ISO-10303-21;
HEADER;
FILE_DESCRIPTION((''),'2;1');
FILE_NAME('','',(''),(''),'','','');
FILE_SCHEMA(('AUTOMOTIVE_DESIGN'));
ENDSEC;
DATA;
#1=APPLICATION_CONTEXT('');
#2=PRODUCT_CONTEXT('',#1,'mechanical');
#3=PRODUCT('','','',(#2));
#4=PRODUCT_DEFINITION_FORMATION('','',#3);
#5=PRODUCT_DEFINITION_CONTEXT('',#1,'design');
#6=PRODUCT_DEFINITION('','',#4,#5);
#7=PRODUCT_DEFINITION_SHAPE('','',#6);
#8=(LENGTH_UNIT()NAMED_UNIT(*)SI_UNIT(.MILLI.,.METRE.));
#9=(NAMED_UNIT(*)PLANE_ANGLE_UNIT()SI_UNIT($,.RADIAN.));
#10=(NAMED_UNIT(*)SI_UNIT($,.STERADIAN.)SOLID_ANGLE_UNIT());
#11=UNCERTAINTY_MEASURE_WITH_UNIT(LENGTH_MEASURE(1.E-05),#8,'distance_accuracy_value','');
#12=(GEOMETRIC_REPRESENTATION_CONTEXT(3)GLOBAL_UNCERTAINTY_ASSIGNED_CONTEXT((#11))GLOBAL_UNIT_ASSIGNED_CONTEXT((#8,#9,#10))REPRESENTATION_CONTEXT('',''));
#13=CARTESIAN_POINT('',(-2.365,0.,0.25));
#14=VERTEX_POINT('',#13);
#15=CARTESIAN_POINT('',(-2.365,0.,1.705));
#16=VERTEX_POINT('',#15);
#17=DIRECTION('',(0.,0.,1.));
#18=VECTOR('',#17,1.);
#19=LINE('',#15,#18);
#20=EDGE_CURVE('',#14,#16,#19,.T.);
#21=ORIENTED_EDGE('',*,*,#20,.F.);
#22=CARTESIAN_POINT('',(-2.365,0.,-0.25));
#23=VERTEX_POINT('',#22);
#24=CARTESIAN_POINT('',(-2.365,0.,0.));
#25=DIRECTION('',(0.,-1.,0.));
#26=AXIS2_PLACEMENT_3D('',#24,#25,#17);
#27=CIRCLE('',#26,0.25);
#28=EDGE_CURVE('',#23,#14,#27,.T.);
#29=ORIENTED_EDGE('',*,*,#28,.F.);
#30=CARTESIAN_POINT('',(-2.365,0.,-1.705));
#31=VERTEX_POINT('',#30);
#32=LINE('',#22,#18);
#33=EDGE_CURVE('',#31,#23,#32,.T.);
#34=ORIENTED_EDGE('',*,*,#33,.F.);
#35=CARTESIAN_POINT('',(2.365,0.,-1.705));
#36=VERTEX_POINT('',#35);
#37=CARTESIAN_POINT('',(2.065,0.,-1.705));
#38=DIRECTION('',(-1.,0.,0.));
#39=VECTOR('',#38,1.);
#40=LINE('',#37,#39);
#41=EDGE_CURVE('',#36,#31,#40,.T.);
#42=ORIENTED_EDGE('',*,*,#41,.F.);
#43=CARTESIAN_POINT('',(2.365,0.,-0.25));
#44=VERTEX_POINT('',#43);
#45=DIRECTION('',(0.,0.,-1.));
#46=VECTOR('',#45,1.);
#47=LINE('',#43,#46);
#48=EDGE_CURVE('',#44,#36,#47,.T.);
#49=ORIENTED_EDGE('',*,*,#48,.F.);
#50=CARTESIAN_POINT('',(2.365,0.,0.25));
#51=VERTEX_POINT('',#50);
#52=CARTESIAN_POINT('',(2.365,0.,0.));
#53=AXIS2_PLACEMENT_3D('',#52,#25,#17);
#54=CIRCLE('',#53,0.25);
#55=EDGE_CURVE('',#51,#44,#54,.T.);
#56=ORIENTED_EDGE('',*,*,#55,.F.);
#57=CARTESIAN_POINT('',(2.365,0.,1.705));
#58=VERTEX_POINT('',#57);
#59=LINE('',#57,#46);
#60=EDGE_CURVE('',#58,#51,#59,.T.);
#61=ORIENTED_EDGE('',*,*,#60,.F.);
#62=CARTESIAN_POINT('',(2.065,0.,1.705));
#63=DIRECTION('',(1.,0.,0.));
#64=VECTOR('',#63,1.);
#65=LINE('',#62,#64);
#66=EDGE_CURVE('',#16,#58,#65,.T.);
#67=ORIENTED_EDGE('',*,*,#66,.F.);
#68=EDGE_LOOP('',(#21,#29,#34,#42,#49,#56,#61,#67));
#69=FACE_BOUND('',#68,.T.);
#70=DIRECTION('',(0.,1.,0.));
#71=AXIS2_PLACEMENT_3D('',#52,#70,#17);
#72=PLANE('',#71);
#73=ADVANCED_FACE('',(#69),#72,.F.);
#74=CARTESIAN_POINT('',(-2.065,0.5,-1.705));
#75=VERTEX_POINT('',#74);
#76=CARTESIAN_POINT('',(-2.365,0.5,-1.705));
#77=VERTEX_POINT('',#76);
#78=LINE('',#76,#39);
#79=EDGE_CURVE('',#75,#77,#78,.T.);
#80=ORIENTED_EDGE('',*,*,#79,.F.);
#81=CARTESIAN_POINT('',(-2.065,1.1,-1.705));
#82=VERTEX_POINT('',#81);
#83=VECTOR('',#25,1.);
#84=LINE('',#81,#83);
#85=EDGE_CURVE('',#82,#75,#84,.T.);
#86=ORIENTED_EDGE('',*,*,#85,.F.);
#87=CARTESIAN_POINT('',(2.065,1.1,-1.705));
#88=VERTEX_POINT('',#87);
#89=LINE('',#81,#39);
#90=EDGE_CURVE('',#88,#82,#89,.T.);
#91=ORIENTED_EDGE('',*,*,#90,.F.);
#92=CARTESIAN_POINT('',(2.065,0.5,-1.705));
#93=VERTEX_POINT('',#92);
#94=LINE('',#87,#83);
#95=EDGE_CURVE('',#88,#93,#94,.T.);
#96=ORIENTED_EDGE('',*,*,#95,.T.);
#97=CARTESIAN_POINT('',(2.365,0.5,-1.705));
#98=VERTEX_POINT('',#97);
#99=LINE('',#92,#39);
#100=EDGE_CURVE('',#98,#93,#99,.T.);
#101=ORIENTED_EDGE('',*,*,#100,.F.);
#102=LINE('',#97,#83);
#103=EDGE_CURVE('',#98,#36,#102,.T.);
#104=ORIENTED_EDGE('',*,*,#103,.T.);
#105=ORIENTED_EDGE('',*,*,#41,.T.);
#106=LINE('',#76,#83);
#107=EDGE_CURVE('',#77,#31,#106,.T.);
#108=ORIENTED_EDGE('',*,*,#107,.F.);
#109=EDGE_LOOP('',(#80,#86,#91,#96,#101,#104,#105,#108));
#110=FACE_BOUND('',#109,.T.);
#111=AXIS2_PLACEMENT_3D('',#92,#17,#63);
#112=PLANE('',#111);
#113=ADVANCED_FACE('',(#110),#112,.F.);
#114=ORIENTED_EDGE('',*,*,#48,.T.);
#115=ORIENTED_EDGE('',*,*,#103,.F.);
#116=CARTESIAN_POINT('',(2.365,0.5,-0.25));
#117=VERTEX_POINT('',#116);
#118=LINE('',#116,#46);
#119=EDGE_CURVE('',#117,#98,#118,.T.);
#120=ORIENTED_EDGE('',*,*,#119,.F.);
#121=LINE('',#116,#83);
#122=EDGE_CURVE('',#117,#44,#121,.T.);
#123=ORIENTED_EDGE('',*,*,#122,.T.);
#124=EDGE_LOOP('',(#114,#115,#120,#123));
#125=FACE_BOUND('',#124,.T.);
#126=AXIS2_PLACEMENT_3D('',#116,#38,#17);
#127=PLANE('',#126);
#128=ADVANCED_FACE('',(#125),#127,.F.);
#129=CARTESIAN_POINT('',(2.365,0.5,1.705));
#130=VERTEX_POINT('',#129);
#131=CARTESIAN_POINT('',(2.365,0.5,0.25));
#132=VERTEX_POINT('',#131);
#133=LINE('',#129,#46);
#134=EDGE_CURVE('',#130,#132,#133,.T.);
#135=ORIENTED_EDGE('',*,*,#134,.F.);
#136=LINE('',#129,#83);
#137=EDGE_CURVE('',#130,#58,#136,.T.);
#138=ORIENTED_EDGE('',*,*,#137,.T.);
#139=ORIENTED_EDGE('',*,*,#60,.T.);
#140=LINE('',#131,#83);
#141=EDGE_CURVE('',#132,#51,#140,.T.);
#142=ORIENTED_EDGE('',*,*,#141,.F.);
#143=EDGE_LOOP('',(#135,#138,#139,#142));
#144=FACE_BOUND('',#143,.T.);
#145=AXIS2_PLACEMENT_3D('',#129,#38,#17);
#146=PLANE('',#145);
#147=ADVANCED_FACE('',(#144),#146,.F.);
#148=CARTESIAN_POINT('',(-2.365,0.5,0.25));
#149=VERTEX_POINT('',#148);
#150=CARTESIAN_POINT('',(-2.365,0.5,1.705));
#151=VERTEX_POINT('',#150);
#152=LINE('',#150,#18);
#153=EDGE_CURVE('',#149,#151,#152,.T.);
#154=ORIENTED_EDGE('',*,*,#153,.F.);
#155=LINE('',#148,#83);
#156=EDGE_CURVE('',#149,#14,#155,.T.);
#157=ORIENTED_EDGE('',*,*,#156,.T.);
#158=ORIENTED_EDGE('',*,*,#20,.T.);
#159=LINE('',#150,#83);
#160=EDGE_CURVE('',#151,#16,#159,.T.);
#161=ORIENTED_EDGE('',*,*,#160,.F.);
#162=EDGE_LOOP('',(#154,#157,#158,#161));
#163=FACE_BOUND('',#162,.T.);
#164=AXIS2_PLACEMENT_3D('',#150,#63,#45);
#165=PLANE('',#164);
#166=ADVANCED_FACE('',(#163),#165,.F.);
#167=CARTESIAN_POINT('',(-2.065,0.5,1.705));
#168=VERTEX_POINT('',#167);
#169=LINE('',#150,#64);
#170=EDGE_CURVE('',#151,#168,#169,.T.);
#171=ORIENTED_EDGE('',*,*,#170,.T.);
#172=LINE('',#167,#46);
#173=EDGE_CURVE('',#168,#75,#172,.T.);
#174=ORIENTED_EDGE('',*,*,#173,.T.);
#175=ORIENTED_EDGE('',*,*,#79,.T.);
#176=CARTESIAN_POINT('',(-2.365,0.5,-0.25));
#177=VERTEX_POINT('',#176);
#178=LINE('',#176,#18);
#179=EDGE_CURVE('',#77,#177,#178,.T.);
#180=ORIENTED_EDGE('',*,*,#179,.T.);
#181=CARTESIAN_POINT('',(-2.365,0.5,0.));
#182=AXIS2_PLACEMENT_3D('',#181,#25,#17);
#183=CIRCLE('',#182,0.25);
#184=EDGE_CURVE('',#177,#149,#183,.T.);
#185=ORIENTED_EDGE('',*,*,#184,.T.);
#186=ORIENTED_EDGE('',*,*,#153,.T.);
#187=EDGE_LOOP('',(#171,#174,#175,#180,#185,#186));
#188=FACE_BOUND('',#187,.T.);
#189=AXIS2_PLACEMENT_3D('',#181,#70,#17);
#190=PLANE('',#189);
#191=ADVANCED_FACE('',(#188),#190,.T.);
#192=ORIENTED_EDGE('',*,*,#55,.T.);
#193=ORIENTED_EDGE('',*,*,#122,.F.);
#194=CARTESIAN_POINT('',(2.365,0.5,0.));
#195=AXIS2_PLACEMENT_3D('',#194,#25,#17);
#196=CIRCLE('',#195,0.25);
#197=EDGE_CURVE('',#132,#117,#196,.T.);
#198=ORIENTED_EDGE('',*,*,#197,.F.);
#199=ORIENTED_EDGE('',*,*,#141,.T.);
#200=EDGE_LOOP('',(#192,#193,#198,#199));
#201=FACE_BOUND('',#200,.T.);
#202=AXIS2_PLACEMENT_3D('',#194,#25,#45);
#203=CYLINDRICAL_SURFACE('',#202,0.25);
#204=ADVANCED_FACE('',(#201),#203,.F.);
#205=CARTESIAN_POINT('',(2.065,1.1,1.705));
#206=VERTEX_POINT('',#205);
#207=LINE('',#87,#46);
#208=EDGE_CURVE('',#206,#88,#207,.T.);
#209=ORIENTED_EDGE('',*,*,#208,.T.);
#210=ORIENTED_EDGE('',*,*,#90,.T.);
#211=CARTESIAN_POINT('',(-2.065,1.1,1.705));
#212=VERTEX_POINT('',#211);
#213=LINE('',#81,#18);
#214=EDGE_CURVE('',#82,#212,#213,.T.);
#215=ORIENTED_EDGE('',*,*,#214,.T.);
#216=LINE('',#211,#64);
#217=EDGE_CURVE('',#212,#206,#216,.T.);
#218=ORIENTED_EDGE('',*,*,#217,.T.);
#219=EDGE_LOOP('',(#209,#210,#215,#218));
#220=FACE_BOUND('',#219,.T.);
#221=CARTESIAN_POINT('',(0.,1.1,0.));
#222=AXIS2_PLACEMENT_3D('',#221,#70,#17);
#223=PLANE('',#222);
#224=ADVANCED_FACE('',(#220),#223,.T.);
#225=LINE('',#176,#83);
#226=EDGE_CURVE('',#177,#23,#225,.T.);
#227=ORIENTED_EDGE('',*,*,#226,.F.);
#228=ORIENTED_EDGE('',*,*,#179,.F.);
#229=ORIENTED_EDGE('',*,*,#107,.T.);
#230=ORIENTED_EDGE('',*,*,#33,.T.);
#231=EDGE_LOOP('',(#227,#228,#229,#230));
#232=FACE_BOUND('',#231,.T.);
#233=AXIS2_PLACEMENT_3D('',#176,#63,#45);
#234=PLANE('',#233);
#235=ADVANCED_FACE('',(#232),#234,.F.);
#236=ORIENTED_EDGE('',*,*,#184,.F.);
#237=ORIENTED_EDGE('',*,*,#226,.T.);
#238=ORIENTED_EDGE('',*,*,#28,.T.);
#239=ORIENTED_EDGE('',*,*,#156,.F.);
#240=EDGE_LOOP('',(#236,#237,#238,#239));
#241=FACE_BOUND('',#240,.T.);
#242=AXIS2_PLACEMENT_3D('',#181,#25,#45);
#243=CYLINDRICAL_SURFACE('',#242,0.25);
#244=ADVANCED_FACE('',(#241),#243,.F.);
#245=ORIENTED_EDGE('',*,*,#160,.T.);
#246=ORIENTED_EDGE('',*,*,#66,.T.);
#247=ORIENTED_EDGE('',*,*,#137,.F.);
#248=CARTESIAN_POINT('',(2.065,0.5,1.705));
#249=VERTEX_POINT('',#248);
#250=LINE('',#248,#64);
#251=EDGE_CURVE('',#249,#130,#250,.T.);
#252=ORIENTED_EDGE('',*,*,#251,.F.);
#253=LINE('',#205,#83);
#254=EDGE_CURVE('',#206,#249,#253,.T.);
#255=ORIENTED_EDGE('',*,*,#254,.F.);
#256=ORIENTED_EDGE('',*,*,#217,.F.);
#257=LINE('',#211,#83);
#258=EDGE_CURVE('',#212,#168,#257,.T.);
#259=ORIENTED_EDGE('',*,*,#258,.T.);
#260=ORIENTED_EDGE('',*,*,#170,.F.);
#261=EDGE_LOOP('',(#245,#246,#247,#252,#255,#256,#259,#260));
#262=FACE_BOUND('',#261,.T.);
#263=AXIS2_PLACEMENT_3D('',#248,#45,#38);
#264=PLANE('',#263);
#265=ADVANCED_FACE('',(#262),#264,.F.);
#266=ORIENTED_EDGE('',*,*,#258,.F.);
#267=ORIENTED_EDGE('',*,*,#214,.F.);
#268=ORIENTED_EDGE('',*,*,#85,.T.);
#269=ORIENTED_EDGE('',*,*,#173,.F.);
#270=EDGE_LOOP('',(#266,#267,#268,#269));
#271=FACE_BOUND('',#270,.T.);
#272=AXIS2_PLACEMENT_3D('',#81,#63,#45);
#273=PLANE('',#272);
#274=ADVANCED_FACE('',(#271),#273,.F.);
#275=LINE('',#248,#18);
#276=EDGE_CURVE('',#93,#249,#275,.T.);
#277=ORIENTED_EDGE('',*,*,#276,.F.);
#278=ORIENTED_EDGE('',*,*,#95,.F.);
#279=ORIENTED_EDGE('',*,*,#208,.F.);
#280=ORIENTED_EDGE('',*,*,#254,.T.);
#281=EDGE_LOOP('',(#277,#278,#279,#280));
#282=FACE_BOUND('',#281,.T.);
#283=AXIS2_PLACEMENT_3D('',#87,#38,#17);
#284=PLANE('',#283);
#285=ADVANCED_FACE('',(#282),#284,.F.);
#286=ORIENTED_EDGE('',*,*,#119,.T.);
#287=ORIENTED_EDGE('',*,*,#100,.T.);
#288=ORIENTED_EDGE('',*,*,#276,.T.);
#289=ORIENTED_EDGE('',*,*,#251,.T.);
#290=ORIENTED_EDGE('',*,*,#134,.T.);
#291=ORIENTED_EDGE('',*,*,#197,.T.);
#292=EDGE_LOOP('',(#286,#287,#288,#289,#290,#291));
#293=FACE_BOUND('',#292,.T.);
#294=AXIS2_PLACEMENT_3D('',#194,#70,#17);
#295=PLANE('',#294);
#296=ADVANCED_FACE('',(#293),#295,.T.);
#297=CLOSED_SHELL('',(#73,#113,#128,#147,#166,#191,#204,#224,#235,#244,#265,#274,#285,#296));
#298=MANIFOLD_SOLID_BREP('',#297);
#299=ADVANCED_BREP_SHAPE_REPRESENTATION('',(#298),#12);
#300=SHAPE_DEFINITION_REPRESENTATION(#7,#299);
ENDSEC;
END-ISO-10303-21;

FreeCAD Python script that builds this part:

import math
import FreeCAD as App
import Part
import Sketcher
from FreeCAD import Vector


def add_polygon(sketch, points):
    """Adds a closed chain of lines whose ends are joined by coincident constraints."""
    first, n = sketch.GeometryCount, len(points)
    for a, b in zip(points, points[1:] + points[:1]):
        sketch.addGeometry(Part.LineSegment(App.Vector(*a, 0), App.Vector(*b, 0)), False)
    for i in range(n):
        sketch.addConstraint(Sketcher.Constraint("Coincident", first + i, 2, first + (i + 1) % n, 1))

doc = App.newDocument("Part")
body = doc.addObject("PartDesign::Body", "Body")

# Sketch on XZ plane
sketch1 = doc.addObject("Sketcher::SketchObject", "Sketch")
body.addObject(sketch1)
sketch1.AttachmentSupport = (doc.XZ_Plane, [""])
sketch1.MapMode = "FlatFace"
sketch1.addGeometry([
    Part.LineSegment(Vector(-2.365, 1.705, 0), Vector(-2.065, 1.705, 0)),  # 0
    Part.LineSegment(Vector(-2.065, 1.705, 0), Vector(-2.065, -1.705, 0)),  # 1
    Part.LineSegment(Vector(-2.065, -1.705, 0), Vector(-2.365, -1.705, 0)),  # 2
    Part.LineSegment(Vector(-2.365, -1.705, 0), Vector(-2.365, -0.25, 0)),  # 3
    Part.ArcOfCircle(Part.Circle(Vector(-2.365, 0, 0), Vector(0, 0, 1), 0.25), math.radians(-90), math.radians(90)),  # 4
    Part.LineSegment(Vector(-2.365, 0.25, 0), Vector(-2.365, 1.705, 0)),  # 5
], False)
sketch1.addConstraint([
    Sketcher.Constraint("Coincident", 0, 2, 1, 1),
    Sketcher.Constraint("Coincident", 1, 2, 2, 1),
    Sketcher.Constraint("Coincident", 2, 2, 3, 1),
    Sketcher.Constraint("Coincident", 3, 2, 4, 1),
    Sketcher.Constraint("Coincident", 4, 2, 5, 1),
    Sketcher.Constraint("Coincident", 5, 2, 0, 1),
    Sketcher.Constraint("Horizontal", 0),
    Sketcher.Constraint("Vertical", 1),
    Sketcher.Constraint("Horizontal", 2),
    Sketcher.Constraint("Vertical", 3),
    Sketcher.Constraint("Vertical", 5),
    Sketcher.Constraint("Symmetric", 3, 2, 4, 2, -1),
    Sketcher.Constraint("Vertical", 4, 3, 2, 2),
    Sketcher.Constraint("Equal", 3, 5),
    Sketcher.Constraint("Radius", 4, 0.25),
    Sketcher.Constraint("DistanceX", 0, 1, 0, 2, 0.3),
    Sketcher.Constraint("DistanceY", 1, 2, 1, 1, 3.41),
    Sketcher.Constraint("DistanceX", 4, 3, -1, 1, 2.365),
])
pad1 = doc.addObject("PartDesign::Pad", "Pad")
body.addObject(pad1)
pad1.Profile = sketch1
pad1.Length = 0.5
pad1.Reversed = True
body2 = doc.addObject("PartDesign::Body", "Body001")

# Sketch on XZ plane
sketch2 = doc.addObject("Sketcher::SketchObject", "Sketch001")
body2.addObject(sketch2)
sketch2.AttachmentSupport = (doc.getObject("XZ_Plane001"), [""])
sketch2.MapMode = "FlatFace"
sketch2.addGeometry([
    Part.LineSegment(Vector(2.365, 1.705, 0), Vector(2.365, 0.25, 0)),  # 0
    Part.ArcOfCircle(Part.Circle(Vector(2.365, 0, 0), Vector(0, 0, 1), 0.25), math.radians(90), math.radians(270)),  # 1
    Part.LineSegment(Vector(2.365, -0.25, 0), Vector(2.365, -1.705, 0)),  # 2
    Part.LineSegment(Vector(2.365, -1.705, 0), Vector(2.065, -1.705, 0)),  # 3
    Part.LineSegment(Vector(2.065, -1.705, 0), Vector(2.065, 1.705, 0)),  # 4
    Part.LineSegment(Vector(2.065, 1.705, 0), Vector(2.365, 1.705, 0)),  # 5
], False)
sketch2.addConstraint([
    Sketcher.Constraint("Coincident", 0, 2, 1, 1),
    Sketcher.Constraint("Coincident", 1, 2, 2, 1),
    Sketcher.Constraint("Coincident", 2, 2, 3, 1),
    Sketcher.Constraint("Coincident", 3, 2, 4, 1),
    Sketcher.Constraint("Coincident", 4, 2, 5, 1),
    Sketcher.Constraint("Coincident", 5, 2, 0, 1),
    Sketcher.Constraint("Vertical", 0),
    Sketcher.Constraint("Vertical", 2),
    Sketcher.Constraint("Horizontal", 3),
    Sketcher.Constraint("Vertical", 4),
    Sketcher.Constraint("Horizontal", 5),
    Sketcher.Constraint("Symmetric", 0, 2, 1, 2, -1),
    Sketcher.Constraint("Vertical", 1, 3, 0, 2),
    Sketcher.Constraint("Equal", 0, 2),
    Sketcher.Constraint("Radius", 1, 0.25),
    Sketcher.Constraint("DistanceX", 3, 2, 3, 1, 0.3),
    Sketcher.Constraint("DistanceY", 4, 1, 4, 2, 3.41),
    Sketcher.Constraint("DistanceX", -1, 1, 1, 3, 2.365),
])
pad2 = doc.addObject("PartDesign::Pad", "Pad001")
body2.addObject(pad2)
pad2.Profile = sketch2
pad2.Length = 0.5
pad2.Reversed = True
body.AllowCompound = True
doc.recompute()

boolean = doc.addObject("PartDesign::Boolean", "Boolean")
body.addObject(boolean)
boolean.Type = "Fuse"
boolean.addObjects([body2])

# Sketch on XZ plane
sketch3 = doc.addObject("Sketcher::SketchObject", "Sketch002")
body.addObject(sketch3)
sketch3.AttachmentSupport = (doc.XZ_Plane, [""])
sketch3.MapMode = "FlatFace"
add_polygon(sketch3, [(-2.065, -1.705), (-2.065, 1.705), (2.065, 1.705), (2.065, -1.705)])  # lines 0-3
sketch3.addConstraint([
    Sketcher.Constraint("Vertical", 0),
    Sketcher.Constraint("Horizontal", 1),
    Sketcher.Constraint("Vertical", 2),
    Sketcher.Constraint("Horizontal", 3),
    Sketcher.Constraint("Symmetric", 0, 2, 2, 2, -1, 1),
    Sketcher.Constraint("DistanceX", 1, 1, 1, 2, 4.13),
    Sketcher.Constraint("DistanceY", 0, 1, 0, 2, 3.41),
])
pad3 = doc.addObject("PartDesign::Pad", "Pad002")
body.addObject(pad3)
pad3.Profile = sketch3
pad3.Length = 1.1
pad3.Reversed = True

doc.recompute()
